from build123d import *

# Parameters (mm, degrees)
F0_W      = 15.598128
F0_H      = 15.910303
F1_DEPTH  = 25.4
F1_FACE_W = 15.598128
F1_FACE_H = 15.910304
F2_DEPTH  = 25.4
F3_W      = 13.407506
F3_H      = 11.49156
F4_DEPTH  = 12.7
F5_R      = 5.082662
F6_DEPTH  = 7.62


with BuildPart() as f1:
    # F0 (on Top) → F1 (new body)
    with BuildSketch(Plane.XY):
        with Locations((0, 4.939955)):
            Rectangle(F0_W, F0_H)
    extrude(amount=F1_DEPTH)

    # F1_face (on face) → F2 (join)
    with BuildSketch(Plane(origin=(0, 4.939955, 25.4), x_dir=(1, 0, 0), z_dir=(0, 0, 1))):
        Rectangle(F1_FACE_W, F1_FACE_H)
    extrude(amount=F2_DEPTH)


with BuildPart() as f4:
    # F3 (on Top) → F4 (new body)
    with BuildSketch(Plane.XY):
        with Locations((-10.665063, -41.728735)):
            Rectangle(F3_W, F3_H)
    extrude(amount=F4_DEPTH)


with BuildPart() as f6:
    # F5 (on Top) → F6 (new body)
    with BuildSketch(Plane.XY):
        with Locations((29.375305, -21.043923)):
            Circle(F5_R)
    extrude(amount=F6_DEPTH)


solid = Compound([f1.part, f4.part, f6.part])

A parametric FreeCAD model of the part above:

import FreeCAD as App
import Part
import Sketcher

V = App.Vector
Q = App.Units.Quantity

doc = App.newDocument("Part")
body = doc.addObject("PartDesign::Body", "Body")

# Sketch on XY plane
sketch1 = body.newObject("Sketcher::SketchObject", "Sketch")
sketch1.AttachmentSupport = (doc.getObject("XY_Plane"), [""])
sketch1.MapMode = "FlatFace"
sketch1.addGeometry([
    Part.LineSegment(V(-8, 13, 0), V(-8, -3, 0)),
    Part.LineSegment(V(-8, -3, 0), V(8, -3, 0)),
    Part.LineSegment(V(8, -3, 0), V(8, 13, 0)),
    Part.LineSegment(V(8, 13, 0), V(-8, 13, 0)),
], False)
sketch1.addConstraint([
    Sketcher.Constraint("Coincident", 0, 2, 1, 1),
    Sketcher.Constraint("Coincident", 1, 2, 2, 1),
    Sketcher.Constraint("Coincident", 2, 2, 3, 1),
    Sketcher.Constraint("Coincident", 3, 2, 0, 1),
    Sketcher.Constraint("Vertical", 0),
    Sketcher.Constraint("Horizontal", 1),
    Sketcher.Constraint("Vertical", 2),
    Sketcher.Constraint("Horizontal", 3),
    Sketcher.Constraint("DistanceX", 1, 1, 1, 2, Q("15.598128 mm")),
    Sketcher.Constraint("DistanceY", 0, 2, 0, 1, Q("15.910303 mm")),
    Sketcher.Constraint("DistanceX", 0, 2, -1, 1, Q("7.799064 mm")),
    Sketcher.Constraint("DistanceY", 0, 2, -1, 1, Q("3.015197 mm")),
])
pad1 = body.newObject("PartDesign::Pad", "Pad")
pad1.Profile = sketch1
pad1.Length = Q("1 in")

# Sketch on XY plane
sketch2 = body.newObject("Sketcher::SketchObject", "Sketch001")
sketch2.AttachmentSupport = (doc.getObject("XY_Plane"), [""])
sketch2.MapMode = "FlatFace"
sketch2.AttachmentOffset = App.Placement(V(0, 0, 1 * 25.4), App.Rotation())
sketch2.addGeometry([
    Part.LineSegment(V(-8, 13, 0), V(-8, -3, 0)),
    Part.LineSegment(V(-8, -3, 0), V(8, -3, 0)),
    Part.LineSegment(V(8, -3, 0), V(8, 13, 0)),
    Part.LineSegment(V(8, 13, 0), V(-8, 13, 0)),
], False)
sketch2.addConstraint([
    Sketcher.Constraint("Coincident", 0, 2, 1, 1),
    Sketcher.Constraint("Coincident", 1, 2, 2, 1),
    Sketcher.Constraint("Coincident", 2, 2, 3, 1),
    Sketcher.Constraint("Coincident", 3, 2, 0, 1),
    Sketcher.Constraint("Vertical", 0),
    Sketcher.Constraint("Horizontal", 1),
    Sketcher.Constraint("Vertical", 2),
    Sketcher.Constraint("Horizontal", 3),
    Sketcher.Constraint("DistanceX", 1, 1, 1, 2, Q("15.598128 mm")),
    Sketcher.Constraint("DistanceY", 0, 2, 0, 1, Q("15.910304 mm")),
    Sketcher.Constraint("DistanceX", 0, 2, -1, 1, Q("7.799064 mm")),
    Sketcher.Constraint("DistanceY", 0, 2, -1, 1, Q("3.015197 mm")),
])
pad2 = body.newObject("PartDesign::Pad", "Pad001")
pad2.Profile = sketch2
pad2.Length = Q("1 in")
body2 = doc.addObject("PartDesign::Body", "Body001")

# Sketch on XY plane
sketch3 = body2.newObject("Sketcher::SketchObject", "Sketch002")
sketch3.AttachmentSupport = (doc.getObject("XY_Plane001"), [""])
sketch3.MapMode = "FlatFace"
sketch3.addGeometry([
    Part.LineSegment(V(-17, -36, 0), V(-17, -47, 0)),
    Part.LineSegment(V(-17, -47, 0), V(-4, -47, 0)),
    Part.LineSegment(V(-4, -47, 0), V(-4, -36, 0)),
    Part.LineSegment(V(-4, -36, 0), V(-17, -36, 0)),
], False)
sketch3.addConstraint([
    Sketcher.Constraint("Coincident", 0, 2, 1, 1),
    Sketcher.Constraint("Coincident", 1, 2, 2, 1),
    Sketcher.Constraint("Coincident", 2, 2, 3, 1),
    Sketcher.Constraint("Coincident", 3, 2, 0, 1),
    Sketcher.Constraint("Vertical", 0),
    Sketcher.Constraint("Horizontal", 1),
    Sketcher.Constraint("Vertical", 2),
    Sketcher.Constraint("Horizontal", 3),
    Sketcher.Constraint("DistanceY", 0, 2, 0, 1, Q("11.49156 mm")),
    Sketcher.Constraint("DistanceX", 1, 1, 1, 2, Q("13.407506 mm")),
    Sketcher.Constraint("DistanceX", 1, 2, -1, 1, Q("3.96131 mm")),
    Sketcher.Constraint("DistanceY", 0, 2, -1, 1, Q("47.474515 mm")),
])
pad3 = body2.newObject("PartDesign::Pad", "Pad002")
pad3.Profile = sketch3
pad3.Length = Q("0.5 in")
body3 = doc.addObject("PartDesign::Body", "Body002")

# Sketch on XY plane
sketch4 = body3.newObject("Sketcher::SketchObject", "Sketch003")
sketch4.AttachmentSupport = (doc.getObject("XY_Plane002"), [""])
sketch4.MapMode = "FlatFace"
sketch4.addGeometry(Part.Circle(V(29, -21, 0), V(0, 0, 1), 5), False)
sketch4.addConstraint([
    Sketcher.Constraint("Diameter", 0, Q("10.165324 mm")),
    Sketcher.Constraint("DistanceX", -1, 1, 0, 3, Q("29.375305 mm")),
    Sketcher.Constraint("DistanceY", 0, 3, -1, 1, Q("21.043923 mm")),
])
pad4 = body3.newObject("PartDesign::Pad", "Pad003")
pad4.Profile = sketch4
pad4.Length = Q("0.3 in")

doc.recompute()
